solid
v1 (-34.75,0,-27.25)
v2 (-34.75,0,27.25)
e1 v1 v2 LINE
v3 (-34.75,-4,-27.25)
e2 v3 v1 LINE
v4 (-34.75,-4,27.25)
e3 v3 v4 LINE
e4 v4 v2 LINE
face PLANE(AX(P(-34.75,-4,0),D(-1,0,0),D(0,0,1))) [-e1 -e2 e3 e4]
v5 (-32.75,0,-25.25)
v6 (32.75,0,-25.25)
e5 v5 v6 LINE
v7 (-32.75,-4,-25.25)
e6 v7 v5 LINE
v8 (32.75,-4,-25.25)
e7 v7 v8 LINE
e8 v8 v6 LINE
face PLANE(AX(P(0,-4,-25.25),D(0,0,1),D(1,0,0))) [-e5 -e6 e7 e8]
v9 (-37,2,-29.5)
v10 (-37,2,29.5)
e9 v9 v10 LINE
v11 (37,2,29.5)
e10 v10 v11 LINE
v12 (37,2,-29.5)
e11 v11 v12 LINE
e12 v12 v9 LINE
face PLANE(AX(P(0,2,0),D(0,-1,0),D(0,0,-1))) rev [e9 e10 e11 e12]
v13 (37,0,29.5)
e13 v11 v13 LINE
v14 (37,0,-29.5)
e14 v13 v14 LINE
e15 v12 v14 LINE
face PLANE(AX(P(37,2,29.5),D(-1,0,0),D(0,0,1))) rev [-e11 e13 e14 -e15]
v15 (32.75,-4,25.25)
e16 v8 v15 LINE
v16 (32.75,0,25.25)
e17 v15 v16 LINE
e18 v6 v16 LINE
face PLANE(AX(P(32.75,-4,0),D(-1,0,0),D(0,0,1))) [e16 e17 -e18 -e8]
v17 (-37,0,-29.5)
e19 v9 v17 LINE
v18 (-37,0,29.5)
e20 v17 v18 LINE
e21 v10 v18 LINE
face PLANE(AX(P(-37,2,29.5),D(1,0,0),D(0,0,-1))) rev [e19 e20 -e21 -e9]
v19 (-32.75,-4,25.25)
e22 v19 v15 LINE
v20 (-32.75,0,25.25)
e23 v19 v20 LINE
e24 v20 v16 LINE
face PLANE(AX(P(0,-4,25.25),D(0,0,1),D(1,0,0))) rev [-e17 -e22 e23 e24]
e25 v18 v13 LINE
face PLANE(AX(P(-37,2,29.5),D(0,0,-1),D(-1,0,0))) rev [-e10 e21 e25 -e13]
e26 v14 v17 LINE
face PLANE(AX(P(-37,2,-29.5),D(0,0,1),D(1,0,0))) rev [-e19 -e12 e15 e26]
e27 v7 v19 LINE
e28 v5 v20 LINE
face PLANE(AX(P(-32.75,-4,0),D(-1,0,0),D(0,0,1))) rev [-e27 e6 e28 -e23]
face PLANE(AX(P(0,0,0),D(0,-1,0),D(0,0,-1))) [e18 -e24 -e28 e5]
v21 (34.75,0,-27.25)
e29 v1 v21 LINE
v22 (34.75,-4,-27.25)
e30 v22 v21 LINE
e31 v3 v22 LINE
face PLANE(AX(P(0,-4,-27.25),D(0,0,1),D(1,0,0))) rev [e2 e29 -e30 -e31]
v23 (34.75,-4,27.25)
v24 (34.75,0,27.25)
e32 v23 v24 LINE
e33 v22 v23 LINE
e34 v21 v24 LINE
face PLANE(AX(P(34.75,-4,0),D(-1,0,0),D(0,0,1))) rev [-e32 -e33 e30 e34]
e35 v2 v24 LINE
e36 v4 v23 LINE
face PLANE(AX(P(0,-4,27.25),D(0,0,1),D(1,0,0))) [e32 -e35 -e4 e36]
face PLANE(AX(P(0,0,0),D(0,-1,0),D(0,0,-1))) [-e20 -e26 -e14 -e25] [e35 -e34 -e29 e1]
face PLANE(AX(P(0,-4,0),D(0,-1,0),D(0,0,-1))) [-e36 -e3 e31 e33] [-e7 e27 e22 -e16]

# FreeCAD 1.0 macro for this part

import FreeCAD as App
import Part
import Sketcher
Q = App.Units.Quantity

doc = App.newDocument("Part")
body = doc.addObject("PartDesign::Body", "Body")

# Sketch on XZ plane
sketch1 = doc.addObject("Sketcher::SketchObject", "Sketch")
body.addObject(sketch1)
sketch1.AttachmentSupport = (doc.XZ_Plane, [""])
sketch1.MapMode = "FlatFace"
sketch1.addGeometry([
    Part.LineSegment(App.Vector(-37, -30, 0), App.Vector(-37, 30, 0)),
    Part.LineSegment(App.Vector(-37, 30, 0), App.Vector(37, 30, 0)),
    Part.LineSegment(App.Vector(37, 30, 0), App.Vector(37, -30, 0)),
    Part.LineSegment(App.Vector(37, -30, 0), App.Vector(-37, -30, 0)),
], False)
sketch1.addConstraint([
    Sketcher.Constraint("Coincident", 0, 2, 1, 1),
    Sketcher.Constraint("Coincident", 1, 2, 2, 1),
    Sketcher.Constraint("Coincident", 2, 2, 3, 1),
    Sketcher.Constraint("Coincident", 3, 2, 0, 1),
    Sketcher.Constraint("Vertical", 0),
    Sketcher.Constraint("Horizontal", 1),
    Sketcher.Constraint("Vertical", 2),
    Sketcher.Constraint("Horizontal", 3),
    Sketcher.Constraint("Symmetric", 0, 2, 2, 2, -1, 1),
    Sketcher.Constraint("DistanceX", 1, 1, 1, 2, Q("74 mm")),
    Sketcher.Constraint("DistanceY", 0, 1, 0, 2, Q("59 mm")),
])
pad1 = doc.addObject("PartDesign::Pad", "Pad")
body.addObject(pad1)
pad1.Profile = sketch1
pad1.Length = 2
pad1.Reversed = True

# Sketch on XZ plane
sketch2 = doc.addObject("Sketcher::SketchObject", "Sketch001")
body.addObject(sketch2)
sketch2.AttachmentSupport = (doc.XZ_Plane, [""])
sketch2.MapMode = "FlatFace"
sketch2.addGeometry([
    Part.LineSegment(App.Vector(-35, 27, 0), App.Vector(-35, -27, 0)),  # 0
    Part.LineSegment(App.Vector(-35, -27, 0), App.Vector(35, -27, 0)),  # 1
    Part.LineSegment(App.Vector(35, -27, 0), App.Vector(35, 27, 0)),  # 2
    Part.LineSegment(App.Vector(35, 27, 0), App.Vector(-35, 27, 0)),  # 3
    Part.LineSegment(App.Vector(33, -25, 0), App.Vector(-33, -25, 0)),  # 4
    Part.LineSegment(App.Vector(-33, -25, 0), App.Vector(-33, 25, 0)),  # 5
    Part.LineSegment(App.Vector(-33, 25, 0), App.Vector(33, 25, 0)),  # 6
    Part.LineSegment(App.Vector(33, 25, 0), App.Vector(33, -25, 0)),  # 7
], False)
sketch2.addConstraint([
    Sketcher.Constraint("Coincident", 0, 2, 1, 1),
    Sketcher.Constraint("Coincident", 1, 2, 2, 1),
    Sketcher.Constraint("Coincident", 2, 2, 3, 1),
    Sketcher.Constraint("Coincident", 3, 2, 0, 1),
    Sketcher.Constraint("Coincident", 4, 2, 5, 1),
    Sketcher.Constraint("Coincident", 5, 2, 6, 1),
    Sketcher.Constraint("Coincident", 6, 2, 7, 1),
    Sketcher.Constraint("Coincident", 7, 2, 4, 1),
    Sketcher.Constraint("Vertical", 0),
    Sketcher.Constraint("Horizontal", 1),
    Sketcher.Constraint("Vertical", 2),
    Sketcher.Constraint("Horizontal", 3),
    Sketcher.Constraint("Horizontal", 4),
    Sketcher.Constraint("Vertical", 5),
    Sketcher.Constraint("Horizontal", 6),
    Sketcher.Constraint("Vertical", 7),
    Sketcher.Constraint("Symmetric", 0, 2, 2, 2, -1, 1),
    Sketcher.Constraint("Symmetric", 4, 2, 6, 2, -1, 1),
    Sketcher.Constraint("DistanceX", 1, 1, 1, 2, Q("69.5 mm")),
    Sketcher.Constraint("DistanceX", 4, 2, 4, 1, Q("65.5 mm")),
    Sketcher.Constraint("DistanceY", 0, 2, 0, 1, Q("54.5 mm")),
    Sketcher.Constraint("DistanceY", 5, 1, 5, 2, Q("50.5 mm")),
])
pad2 = doc.addObject("PartDesign::Pad", "Pad001")
body.addObject(pad2)
pad2.Profile = sketch2
pad2.Length = 4

doc.recompute()
